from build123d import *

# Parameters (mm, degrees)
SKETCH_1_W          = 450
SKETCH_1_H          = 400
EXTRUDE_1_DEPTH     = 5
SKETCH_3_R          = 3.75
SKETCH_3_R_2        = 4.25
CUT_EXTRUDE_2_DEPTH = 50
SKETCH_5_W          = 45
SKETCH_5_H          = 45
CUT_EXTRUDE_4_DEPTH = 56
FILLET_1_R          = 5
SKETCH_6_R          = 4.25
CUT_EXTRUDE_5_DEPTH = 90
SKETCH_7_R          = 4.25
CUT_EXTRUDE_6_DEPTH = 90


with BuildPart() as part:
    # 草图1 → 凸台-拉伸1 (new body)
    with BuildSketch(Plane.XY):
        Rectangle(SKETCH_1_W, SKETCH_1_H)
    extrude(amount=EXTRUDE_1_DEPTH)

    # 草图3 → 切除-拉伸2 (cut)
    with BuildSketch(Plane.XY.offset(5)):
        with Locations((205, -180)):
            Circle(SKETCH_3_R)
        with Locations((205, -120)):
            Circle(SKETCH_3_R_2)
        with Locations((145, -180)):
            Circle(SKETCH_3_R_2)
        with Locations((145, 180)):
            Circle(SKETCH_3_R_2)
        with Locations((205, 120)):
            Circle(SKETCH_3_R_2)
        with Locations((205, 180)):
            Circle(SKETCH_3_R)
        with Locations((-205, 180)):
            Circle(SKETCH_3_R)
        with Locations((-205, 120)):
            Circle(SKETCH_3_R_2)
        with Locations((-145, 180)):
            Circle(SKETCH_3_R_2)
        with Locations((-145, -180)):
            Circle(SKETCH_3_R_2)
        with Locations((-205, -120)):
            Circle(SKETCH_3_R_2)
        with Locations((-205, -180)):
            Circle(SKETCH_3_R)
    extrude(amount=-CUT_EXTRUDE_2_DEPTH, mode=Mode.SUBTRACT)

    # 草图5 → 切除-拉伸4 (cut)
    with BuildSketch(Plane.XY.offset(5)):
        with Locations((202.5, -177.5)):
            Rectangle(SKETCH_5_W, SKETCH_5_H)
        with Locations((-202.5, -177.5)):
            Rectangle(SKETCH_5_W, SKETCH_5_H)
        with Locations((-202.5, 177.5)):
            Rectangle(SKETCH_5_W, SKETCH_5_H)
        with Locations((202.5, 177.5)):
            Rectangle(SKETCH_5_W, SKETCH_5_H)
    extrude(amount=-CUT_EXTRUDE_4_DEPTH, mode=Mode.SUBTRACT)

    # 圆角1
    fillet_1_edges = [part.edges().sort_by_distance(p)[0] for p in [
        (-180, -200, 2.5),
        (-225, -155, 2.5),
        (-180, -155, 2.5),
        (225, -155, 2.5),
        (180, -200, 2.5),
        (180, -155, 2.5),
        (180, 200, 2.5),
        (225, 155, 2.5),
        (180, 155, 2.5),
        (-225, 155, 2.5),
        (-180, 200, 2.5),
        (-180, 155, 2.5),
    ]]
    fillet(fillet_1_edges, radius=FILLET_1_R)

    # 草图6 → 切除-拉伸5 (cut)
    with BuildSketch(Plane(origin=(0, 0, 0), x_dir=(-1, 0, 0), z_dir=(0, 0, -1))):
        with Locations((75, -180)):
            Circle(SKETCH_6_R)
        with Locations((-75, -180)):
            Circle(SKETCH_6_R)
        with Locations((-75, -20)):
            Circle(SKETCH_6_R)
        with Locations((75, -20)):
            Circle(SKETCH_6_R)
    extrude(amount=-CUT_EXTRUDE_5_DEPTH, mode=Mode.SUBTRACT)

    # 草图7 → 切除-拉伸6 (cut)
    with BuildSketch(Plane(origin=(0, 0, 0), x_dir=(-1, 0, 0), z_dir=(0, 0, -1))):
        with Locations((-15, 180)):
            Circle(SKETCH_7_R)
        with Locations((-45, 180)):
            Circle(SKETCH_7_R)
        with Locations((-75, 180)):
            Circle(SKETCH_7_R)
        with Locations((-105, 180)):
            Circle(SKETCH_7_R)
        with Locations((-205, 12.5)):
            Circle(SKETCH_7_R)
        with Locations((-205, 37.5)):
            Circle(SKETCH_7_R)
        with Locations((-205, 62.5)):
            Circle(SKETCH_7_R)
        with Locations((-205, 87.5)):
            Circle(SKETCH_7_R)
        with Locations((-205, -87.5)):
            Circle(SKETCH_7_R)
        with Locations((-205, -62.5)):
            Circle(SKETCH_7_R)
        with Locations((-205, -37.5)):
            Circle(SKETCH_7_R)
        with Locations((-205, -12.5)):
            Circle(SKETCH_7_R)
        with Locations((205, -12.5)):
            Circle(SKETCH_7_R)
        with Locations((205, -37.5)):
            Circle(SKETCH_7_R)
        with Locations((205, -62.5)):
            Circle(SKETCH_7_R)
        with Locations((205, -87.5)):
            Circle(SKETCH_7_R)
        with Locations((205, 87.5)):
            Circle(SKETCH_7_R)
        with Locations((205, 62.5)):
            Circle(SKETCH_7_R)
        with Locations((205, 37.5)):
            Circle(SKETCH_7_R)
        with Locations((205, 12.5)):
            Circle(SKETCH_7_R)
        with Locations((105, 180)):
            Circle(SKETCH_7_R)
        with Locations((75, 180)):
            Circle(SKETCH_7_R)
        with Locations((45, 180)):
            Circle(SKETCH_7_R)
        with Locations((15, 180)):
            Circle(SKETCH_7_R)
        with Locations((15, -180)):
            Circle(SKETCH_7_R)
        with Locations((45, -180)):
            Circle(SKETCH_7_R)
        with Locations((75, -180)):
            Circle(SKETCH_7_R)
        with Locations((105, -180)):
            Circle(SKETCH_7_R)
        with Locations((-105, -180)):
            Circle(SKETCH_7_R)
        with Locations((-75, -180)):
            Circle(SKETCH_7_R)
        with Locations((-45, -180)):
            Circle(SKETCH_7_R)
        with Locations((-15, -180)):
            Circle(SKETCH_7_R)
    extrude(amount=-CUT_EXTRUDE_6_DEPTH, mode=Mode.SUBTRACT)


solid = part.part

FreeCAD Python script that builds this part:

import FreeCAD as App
import Part
import Sketcher

V = App.Vector
Q = App.Units.Quantity


def edges_at(feature, points):
    """Names of the edges that pass closest to the given points."""
    edges = feature.Shape.Edges
    near = lambda p: min(range(len(edges)), key=lambda i: edges[i].distToShape(Part.Vertex(*p))[0])
    return sorted({f"Edge{near(p) + 1}" for p in points})


def add_polygon(sketch, points):
    """Adds a closed chain of lines whose ends are joined by coincident constraints."""
    first, n = sketch.GeometryCount, len(points)
    for a, b in zip(points, points[1:] + points[:1]):
        sketch.addGeometry(Part.LineSegment(App.Vector(*a, 0), App.Vector(*b, 0)), False)
    for i in range(n):
        sketch.addConstraint(Sketcher.Constraint("Coincident", first + i, 2, first + (i + 1) % n, 1))

doc = App.newDocument("Part")
params = doc.addObject("Spreadsheet::Sheet", "Params")
for row, (alias, value) in enumerate([
    ("sketch1_width", "450 mm"),
    ("sketch1_height", "400 mm"),
    ("pad1_length", "5 mm"),
    ("sketch2_diameter", "7.5 mm"),
    ("sketch2_diameter2", "8.5 mm"),
    ("pocket1_length", "50 mm"),
    ("sketch3_width", "45 mm"),
    ("pocket2_length", "56 mm"),
    ("fillet_radius", "5 mm"),
    ("sketch4_diameter", "8.5 mm"),
    ("pocket3_length", "90 mm"),
    ("sketch5_diameter", "8.5 mm"),
    ("pocket4_length", "90 mm"),
], start=1):
    params.set(f"A{row}", alias)
    params.set(f"B{row}", "=" + value)
    params.setAlias(f"B{row}", alias)

body = doc.addObject("PartDesign::Body", "Body")

# Sketch on XY plane
sketch1 = body.newObject("Sketcher::SketchObject", "Sketch")
sketch1.AttachmentSupport = (doc.getObject("XY_Plane"), [""])
sketch1.MapMode = "FlatFace"
add_polygon(sketch1, [(-225, 200), (-225, -200), (225, -200), (225, 200)])  # lines 0-3
sketch1.addConstraint(Sketcher.Constraint("Vertical", 0))
sketch1.addConstraint(Sketcher.Constraint("Horizontal", 1))
sketch1.addConstraint(Sketcher.Constraint("Vertical", 2))
sketch1.addConstraint(Sketcher.Constraint("Horizontal", 3))
sketch1.addConstraint(Sketcher.Constraint("Symmetric", 0, 2, 2, 2, -1, 1))
sketch1.addConstraint(Sketcher.Constraint("DistanceX", 1, 1, 1, 2, Q("450 mm")))
sketch1.addConstraint(Sketcher.Constraint("DistanceY", 0, 2, 0, 1, Q("400 mm")))
sketch1.setExpression("Constraints[9]", "Params.sketch1_width")
sketch1.setExpression("Constraints[10]", "Params.sketch1_height")
pad1 = body.newObject("PartDesign::Pad", "Pad")
pad1.Profile = sketch1
pad1.setExpression("Length", "Params.pad1_length")

# Sketch on XY plane
sketch2 = body.newObject("Sketcher::SketchObject", "Sketch001")
sketch2.AttachmentSupport = (doc.getObject("XY_Plane"), [""])
sketch2.MapMode = "FlatFace"
sketch2.AttachmentOffset = App.Placement(V(0, 0, 5), App.Rotation())
sketch2.addGeometry(Part.Circle(V(205, -180, 0), V(0, 0, 1), 3.75), False)
sketch2.addGeometry(Part.Circle(V(205, -120, 0), V(0, 0, 1), 4.25), False)
sketch2.addGeometry(Part.Circle(V(145, -180, 0), V(0, 0, 1), 4.25), False)
sketch2.addGeometry(Part.Circle(V(145, 180, 0), V(0, 0, 1), 4.25), False)
sketch2.addGeometry(Part.Circle(V(205, 120, 0), V(0, 0, 1), 4.25), False)
sketch2.addGeometry(Part.Circle(V(205, 180, 0), V(0, 0, 1), 3.75), False)
sketch2.addGeometry(Part.Circle(V(-205, 180, 0), V(0, 0, 1), 3.75), False)
sketch2.addGeometry(Part.Circle(V(-205, 120, 0), V(0, 0, 1), 4.25), False)
sketch2.addGeometry(Part.Circle(V(-145, 180, 0), V(0, 0, 1), 4.25), False)
sketch2.addGeometry(Part.Circle(V(-145, -180, 0), V(0, 0, 1), 4.25), False)
sketch2.addGeometry(Part.Circle(V(-205, -120, 0), V(0, 0, 1), 4.25), False)
sketch2.addGeometry(Part.Circle(V(-205, -180, 0), V(0, 0, 1), 3.75), False)
sketch2.addConstraint(Sketcher.Constraint("Equal", 1, 2))
sketch2.addConstraint(Sketcher.Constraint("Equal", 2, 3))
sketch2.addConstraint(Sketcher.Constraint("Equal", 3, 4))
sketch2.addConstraint(Sketcher.Constraint("Equal", 0, 5))
sketch2.addConstraint(Sketcher.Constraint("Equal", 5, 6))
sketch2.addConstraint(Sketcher.Constraint("Equal", 4, 7))
sketch2.addConstraint(Sketcher.Constraint("Equal", 7, 8))
sketch2.addConstraint(Sketcher.Constraint("Equal", 8, 9))
sketch2.addConstraint(Sketcher.Constraint("Equal", 9, 10))
sketch2.addConstraint(Sketcher.Constraint("Equal", 6, 11))
sketch2.addConstraint(Sketcher.Constraint("Symmetric", 0, 3, 6, 3, -1, 1))
sketch2.addConstraint(Sketcher.Constraint("Symmetric", 1, 3, 7, 3, -1, 1))
sketch2.addConstraint(Sketcher.Constraint("Symmetric", 2, 3, 8, 3, -1, 1))
sketch2.addConstraint(Sketcher.Constraint("Symmetric", 3, 3, 9, 3, -1, 1))
sketch2.addConstraint(Sketcher.Constraint("Symmetric", 4, 3, 10, 3, -1, 1))
sketch2.addConstraint(Sketcher.Constraint("Symmetric", 5, 3, 11, 3, -1, 1))
sketch2.addConstraint(Sketcher.Constraint("Symmetric", 5, 3, 6, 3, -2))
sketch2.addConstraint(Sketcher.Constraint("Symmetric", 4, 3, 7, 3, -2))
sketch2.addConstraint(Sketcher.Constraint("Symmetric", 3, 3, 8, 3, -2))
sketch2.addConstraint(Sketcher.Constraint("Horizontal", 0, 3, 2, 3))
sketch2.addConstraint(Sketcher.Constraint("Vertical", 0, 3, 1, 3))
sketch2.addConstraint(Sketcher.Constraint("Diameter", 0, Q("7.5 mm")))
sketch2.addConstraint(Sketcher.Constraint("Diameter", 1, Q("8.5 mm")))
sketch2.addConstraint(Sketcher.Constraint("DistanceX", -1, 1, 0, 3, Q("205 mm")))
sketch2.addConstraint(Sketcher.Constraint("DistanceY", 0, 3, -1, 1, Q("180 mm")))
sketch2.addConstraint(Sketcher.Constraint("DistanceY", 1, 3, -1, 1, Q("120 mm")))
sketch2.addConstraint(Sketcher.Constraint("DistanceX", -1, 1, 2, 3, Q("145 mm")))
sketch2.setExpression("Constraints[21]", "Params.sketch2_diameter")
sketch2.setExpression("Constraints[22]", "Params.sketch2_diameter2")
pocket1 = body.newObject("PartDesign::Pocket", "Pocket")
pocket1.Profile = sketch2
pocket1.setExpression("Length", "Params.pocket1_length")

# Sketch on XY plane
sketch3 = body.newObject("Sketcher::SketchObject", "Sketch002")
sketch3.AttachmentSupport = (doc.getObject("XY_Plane"), [""])
sketch3.MapMode = "FlatFace"
sketch3.AttachmentOffset = App.Placement(V(0, 0, 5), App.Rotation())
add_polygon(sketch3, [(180, -155), (180, -200), (225, -200), (225, -155)])  # lines 0-3
add_polygon(sketch3, [(-225, -155), (-225, -200), (-180, -200), (-180, -155)])  # lines 4-7
add_polygon(sketch3, [(-225, 200), (-225, 155), (-180, 155), (-180, 200)])  # lines 8-11
add_polygon(sketch3, [(180, 200), (180, 155), (225, 155), (225, 200)])  # lines 12-15
sketch3.addConstraint(Sketcher.Constraint("Vertical", 0))
sketch3.addConstraint(Sketcher.Constraint("Horizontal", 1))
sketch3.addConstraint(Sketcher.Constraint("Vertical", 2))
sketch3.addConstraint(Sketcher.Constraint("Horizontal", 3))
sketch3.addConstraint(Sketcher.Constraint("Vertical", 4))
sketch3.addConstraint(Sketcher.Constraint("Horizontal", 5))
sketch3.addConstraint(Sketcher.Constraint("Vertical", 6))
sketch3.addConstraint(Sketcher.Constraint("Horizontal", 7))
sketch3.addConstraint(Sketcher.Constraint("Vertical", 8))
sketch3.addConstraint(Sketcher.Constraint("Horizontal", 9))
sketch3.addConstraint(Sketcher.Constraint("Vertical", 10))
sketch3.addConstraint(Sketcher.Constraint("Horizontal", 11))
sketch3.addConstraint(Sketcher.Constraint("Vertical", 12))
sketch3.addConstraint(Sketcher.Constraint("Horizontal", 13))
sketch3.addConstraint(Sketcher.Constraint("Vertical", 14))
sketch3.addConstraint(Sketcher.Constraint("Horizontal", 15))
sketch3.addConstraint(Sketcher.Constraint("Symmetric", 2, 2, 8, 2, -1, 1))
sketch3.addConstraint(Sketcher.Constraint("Symmetric", 0, 2, 10, 2, -1, 1))
sketch3.addConstraint(Sketcher.Constraint("Symmetric", 6, 2, 12, 2, -1, 1))
sketch3.addConstraint(Sketcher.Constraint("Symmetric", 4, 2, 14, 2, -1, 1))
sketch3.addConstraint(Sketcher.Constraint("Symmetric", 1, 2, 4, 2, -2))
sketch3.addConstraint(Sketcher.Constraint("Symmetric", 3, 2, 6, 2, -2))
sketch3.addConstraint(Sketcher.Constraint("Equal", 15, 0))
sketch3.addConstraint(Sketcher.Constraint("DistanceX", 1, 1, 1, 2, Q("45 mm")))
sketch3.addConstraint(Sketcher.Constraint("DistanceX", -1, 1, 0, 2, Q("180 mm")))
sketch3.addConstraint(Sketcher.Constraint("DistanceY", 0, 2, -1, 1, Q("200 mm")))
sketch3.setExpression("Constraints[39]", "Params.sketch3_width")
pocket2 = body.newObject("PartDesign::Pocket", "Pocket001")
pocket2.Profile = sketch3
pocket2.setExpression("Length", "Params.pocket2_length")
doc.recompute()

fillet = body.newObject("PartDesign::Fillet", "Fillet")
fillet.Base = (pocket2, edges_at(pocket2, [
    (-180, -200, 2.5),
    (-225, -155, 2.5),
    (-180, -155, 2.5),
    (225, -155, 2.5),
    (180, -200, 2.5),
    (180, -155, 2.5),
    (180, 200, 2.5),
    (225, 155, 2.5),
    (180, 155, 2.5),
    (-225, 155, 2.5),
    (-180, 200, 2.5),
    (-180, 155, 2.5),
]))
fillet.setExpression("Radius", "Params.fillet_radius")

# Sketch on XY plane
sketch4 = body.newObject("Sketcher::SketchObject", "Sketch003")
sketch4.AttachmentSupport = (doc.getObject("XY_Plane"), [""])
sketch4.MapMode = "FlatFace"
sketch4.addGeometry(Part.Circle(V(-75, -180, 0), V(0, 0, 1), 4.25), False)
sketch4.addGeometry(Part.Circle(V(75, -180, 0), V(0, 0, 1), 4.25), False)
sketch4.addGeometry(Part.Circle(V(75, -20, 0), V(0, 0, 1), 4.25), False)
sketch4.addGeometry(Part.Circle(V(-75, -20, 0), V(0, 0, 1), 4.25), False)
sketch4.addConstraint(Sketcher.Constraint("Equal", 0, 1))
sketch4.addConstraint(Sketcher.Constraint("Equal", 1, 2))
sketch4.addConstraint(Sketcher.Constraint("Equal", 2, 3))
sketch4.addConstraint(Sketcher.Constraint("Symmetric", 0, 3, 1, 3, -2))
sketch4.addConstraint(Sketcher.Constraint("Symmetric", 2, 3, 3, 3, -2))
sketch4.addConstraint(Sketcher.Constraint("Vertical", 1, 3, 2, 3))
sketch4.addConstraint(Sketcher.Constraint("Diameter", 0, Q("8.5 mm")))
sketch4.addConstraint(Sketcher.Constraint("DistanceX", 0, 3, -1, 1, Q("75 mm")))
sketch4.addConstraint(Sketcher.Constraint("DistanceY", 0, 3, -1, 1, Q("180 mm")))
sketch4.addConstraint(Sketcher.Constraint("DistanceY", 2, 3, -1, 1, Q("20 mm")))
sketch4.setExpression("Constraints[6]", "Params.sketch4_diameter")
pocket3 = body.newObject("PartDesign::Pocket", "Pocket002")
pocket3.Profile = sketch4
pocket3.setExpression("Length", "Params.pocket3_length")
pocket3.Reversed = True

# Sketch on XY plane
sketch5 = body.newObject("Sketcher::SketchObject", "Sketch004")
sketch5.AttachmentSupport = (doc.getObject("XY_Plane"), [""])
sketch5.MapMode = "FlatFace"
sketch5.addGeometry(Part.Circle(V(15, 180, 0), V(0, 0, 1), 4.25), False)
sketch5.addGeometry(Part.Circle(V(45, 180, 0), V(0, 0, 1), 4.25), False)
sketch5.addGeometry(Part.Circle(V(75, 180, 0), V(0, 0, 1), 4.25), False)
sketch5.addGeometry(Part.Circle(V(105, 180, 0), V(0, 0, 1), 4.25), False)
sketch5.addGeometry(Part.Circle(V(205, 12.5, 0), V(0, 0, 1), 4.25), False)
sketch5.addGeometry(Part.Circle(V(205, 37.5, 0), V(0, 0, 1), 4.25), False)
sketch5.addGeometry(Part.Circle(V(205, 62.5, 0), V(0, 0, 1), 4.25), False)
sketch5.addGeometry(Part.Circle(V(205, 87.5, 0), V(0, 0, 1), 4.25), False)
sketch5.addGeometry(Part.Circle(V(205, -87.5, 0), V(0, 0, 1), 4.25), False)
sketch5.addGeometry(Part.Circle(V(205, -62.5, 0), V(0, 0, 1), 4.25), False)
sketch5.addGeometry(Part.Circle(V(205, -37.5, 0), V(0, 0, 1), 4.25), False)
sketch5.addGeometry(Part.Circle(V(205, -12.5, 0), V(0, 0, 1), 4.25), False)
sketch5.addGeometry(Part.Circle(V(-205, -12.5, 0), V(0, 0, 1), 4.25), False)
sketch5.addGeometry(Part.Circle(V(-205, -37.5, 0), V(0, 0, 1), 4.25), False)
sketch5.addGeometry(Part.Circle(V(-205, -62.5, 0), V(0, 0, 1), 4.25), False)
sketch5.addGeometry(Part.Circle(V(-205, -87.5, 0), V(0, 0, 1), 4.25), False)
sketch5.addGeometry(Part.Circle(V(-205, 87.5, 0), V(0, 0, 1), 4.25), False)
sketch5.addGeometry(Part.Circle(V(-205, 62.5, 0), V(0, 0, 1), 4.25), False)
sketch5.addGeometry(Part.Circle(V(-205, 37.5, 0), V(0, 0, 1), 4.25), False)
sketch5.addGeometry(Part.Circle(V(-205, 12.5, 0), V(0, 0, 1), 4.25), False)
sketch5.addGeometry(Part.Circle(V(-105, 180, 0), V(0, 0, 1), 4.25), False)
sketch5.addGeometry(Part.Circle(V(-75, 180, 0), V(0, 0, 1), 4.25), False)
sketch5.addGeometry(Part.Circle(V(-45, 180, 0), V(0, 0, 1), 4.25), False)
sketch5.addGeometry(Part.Circle(V(-15, 180, 0), V(0, 0, 1), 4.25), False)
sketch5.addGeometry(Part.Circle(V(-15, -180, 0), V(0, 0, 1), 4.25), False)
sketch5.addGeometry(Part.Circle(V(-45, -180, 0), V(0, 0, 1), 4.25), False)
sketch5.addGeometry(Part.Circle(V(-75, -180, 0), V(0, 0, 1), 4.25), False)
sketch5.addGeometry(Part.Circle(V(-105, -180, 0), V(0, 0, 1), 4.25), False)
sketch5.addGeometry(Part.Circle(V(105, -180, 0), V(0, 0, 1), 4.25), False)
sketch5.addGeometry(Part.Circle(V(75, -180, 0), V(0, 0, 1), 4.25), False)
sketch5.addGeometry(Part.Circle(V(45, -180, 0), V(0, 0, 1), 4.25), False)
sketch5.addGeometry(Part.Circle(V(15, -180, 0), V(0, 0, 1), 4.25), False)
sketch5.addConstraint(Sketcher.Constraint("Equal", 0, 1))
sketch5.addConstraint(Sketcher.Constraint("Equal", 1, 2))
sketch5.addConstraint(Sketcher.Constraint("Equal", 2, 3))
sketch5.addConstraint(Sketcher.Constraint("Equal", 3, 4))
sketch5.addConstraint(Sketcher.Constraint("Equal", 4, 5))
sketch5.addConstraint(Sketcher.Constraint("Equal", 5, 6))
sketch5.addConstraint(Sketcher.Constraint("Equal", 6, 7))
sketch5.addConstraint(Sketcher.Constraint("Equal", 7, 8))
sketch5.addConstraint(Sketcher.Constraint("Equal", 8, 9))
sketch5.addConstraint(Sketcher.Constraint("Equal", 9, 10))
sketch5.addConstraint(Sketcher.Constraint("Equal", 10, 11))
sketch5.addConstraint(Sketcher.Constraint("Equal", 11, 12))
sketch5.addConstraint(Sketcher.Constraint("Equal", 12, 13))
sketch5.addConstraint(Sketcher.Constraint("Equal", 13, 14))
sketch5.addConstraint(Sketcher.Constraint("Equal", 14, 15))
sketch5.addConstraint(Sketcher.Constraint("Equal", 15, 16))
sketch5.addConstraint(Sketcher.Constraint("Equal", 16, 17))
sketch5.addConstraint(Sketcher.Constraint("Equal", 17, 18))
sketch5.addConstraint(Sketcher.Constraint("Equal", 18, 19))
sketch5.addConstraint(Sketcher.Constraint("Equal", 19, 20))
sketch5.addConstraint(Sketcher.Constraint("Equal", 20, 21))
sketch5.addConstraint(Sketcher.Constraint("Equal", 21, 22))
sketch5.addConstraint(Sketcher.Constraint("Equal", 22, 23))
sketch5.addConstraint(Sketcher.Constraint("Equal", 23, 24))
sketch5.addConstraint(Sketcher.Constraint("Equal", 24, 25))
sketch5.addConstraint(Sketcher.Constraint("Equal", 25, 26))
sketch5.addConstraint(Sketcher.Constraint("Equal", 26, 27))
sketch5.addConstraint(Sketcher.Constraint("Equal", 27, 28))
sketch5.addConstraint(Sketcher.Constraint("Equal", 28, 29))
sketch5.addConstraint(Sketcher.Constraint("Equal", 29, 30))
sketch5.addConstraint(Sketcher.Constraint("Equal", 30, 31))
sketch5.addConstraint(Sketcher.Constraint("Symmetric", 4, 3, 12, 3, -1, 1))
sketch5.addConstraint(Sketcher.Constraint("Symmetric", 5, 3, 13, 3, -1, 1))
sketch5.addConstraint(Sketcher.Constraint("Symmetric", 6, 3, 14, 3, -1, 1))
sketch5.addConstraint(Sketcher.Constraint("Symmetric", 7, 3, 15, 3, -1, 1))
sketch5.addConstraint(Sketcher.Constraint("Symmetric", 8, 3, 16, 3, -1, 1))
sketch5.addConstraint(Sketcher.Constraint("Symmetric", 9, 3, 17, 3, -1, 1))
sketch5.addConstraint(Sketcher.Constraint("Symmetric", 10, 3, 18, 3, -1, 1))
sketch5.addConstraint(Sketcher.Constraint("Symmetric", 11, 3, 19, 3, -1, 1))
sketch5.addConstraint(Sketcher.Constraint("Symmetric", 0, 3, 24, 3, -1, 1))
sketch5.addConstraint(Sketcher.Constraint("Symmetric", 1, 3, 25, 3, -1, 1))
sketch5.addConstraint(Sketcher.Constraint("Symmetric", 2, 3, 26, 3, -1, 1))
sketch5.addConstraint(Sketcher.Constraint("Symmetric", 3, 3, 27, 3, -1, 1))
sketch5.addConstraint(Sketcher.Constraint("Symmetric", 20, 3, 28, 3, -1, 1))
sketch5.addConstraint(Sketcher.Constraint("Symmetric", 21, 3, 29, 3, -1, 1))
sketch5.addConstraint(Sketcher.Constraint("Symmetric", 22, 3, 30, 3, -1, 1))
sketch5.addConstraint(Sketcher.Constraint("Symmetric", 23, 3, 31, 3, -1, 1))
sketch5.addConstraint(Sketcher.Constraint("Symmetric", 11, 3, 12, 3, -2))
sketch5.addConstraint(Sketcher.Constraint("Symmetric", 10, 3, 13, 3, -2))
sketch5.addConstraint(Sketcher.Constraint("Symmetric", 9, 3, 14, 3, -2))
sketch5.addConstraint(Sketcher.Constraint("Symmetric", 8, 3, 15, 3, -2))
sketch5.addConstraint(Sketcher.Constraint("Symmetric", 3, 3, 20, 3, -2))
sketch5.addConstraint(Sketcher.Constraint("Symmetric", 2, 3, 21, 3, -2))
sketch5.addConstraint(Sketcher.Constraint("Symmetric", 1, 3, 22, 3, -2))
sketch5.addConstraint(Sketcher.Constraint("Symmetric", 0, 3, 23, 3, -2))
sketch5.addConstraint(Sketcher.Constraint("Horizontal", 0, 3, 1, 3))
sketch5.addConstraint(Sketcher.Constraint("Horizontal", 1, 3, 2, 3))
sketch5.addConstraint(Sketcher.Constraint("Horizontal", 2, 3, 3, 3))
sketch5.addConstraint(Sketcher.Constraint("Vertical", 4, 3, 5, 3))
sketch5.addConstraint(Sketcher.Constraint("Vertical", 5, 3, 6, 3))
sketch5.addConstraint(Sketcher.Constraint("Vertical", 6, 3, 7, 3))
sketch5.addConstraint(Sketcher.Constraint("Diameter", 0, Q("8.5 mm")))
sketch5.addConstraint(Sketcher.Constraint("DistanceX", -1, 1, 0, 3, Q("15 mm")))
sketch5.addConstraint(Sketcher.Constraint("DistanceY", -1, 1, 0, 3, Q("180 mm")))
sketch5.addConstraint(Sketcher.Constraint("DistanceX", -1, 1, 1, 3, Q("45 mm")))
sketch5.addConstraint(Sketcher.Constraint("DistanceX", -1, 1, 2, 3, Q("75 mm")))
sketch5.addConstraint(Sketcher.Constraint("DistanceX", -1, 1, 3, 3, Q("105 mm")))
sketch5.addConstraint(Sketcher.Constraint("DistanceX", -1, 1, 4, 3, Q("205 mm")))
sketch5.addConstraint(Sketcher.Constraint("DistanceY", 4, 3, 5, 3, Q("25 mm")))
sketch5.addConstraint(Sketcher.Constraint("DistanceY", 5, 3, 6, 3, Q("25 mm")))
sketch5.addConstraint(Sketcher.Constraint("DistanceY", 6, 3, 7, 3, Q("25 mm")))
sketch5.addConstraint(Sketcher.Constraint("DistanceY", 8, 3, 4, 3, Q("100 mm")))
sketch5.setExpression("Constraints[61]", "Params.sketch5_diameter")
pocket4 = body.newObject("PartDesign::Pocket", "Pocket003")
pocket4.Profile = sketch5
pocket4.setExpression("Length", "Params.pocket4_length")
pocket4.Reversed = True

doc.recompute()
